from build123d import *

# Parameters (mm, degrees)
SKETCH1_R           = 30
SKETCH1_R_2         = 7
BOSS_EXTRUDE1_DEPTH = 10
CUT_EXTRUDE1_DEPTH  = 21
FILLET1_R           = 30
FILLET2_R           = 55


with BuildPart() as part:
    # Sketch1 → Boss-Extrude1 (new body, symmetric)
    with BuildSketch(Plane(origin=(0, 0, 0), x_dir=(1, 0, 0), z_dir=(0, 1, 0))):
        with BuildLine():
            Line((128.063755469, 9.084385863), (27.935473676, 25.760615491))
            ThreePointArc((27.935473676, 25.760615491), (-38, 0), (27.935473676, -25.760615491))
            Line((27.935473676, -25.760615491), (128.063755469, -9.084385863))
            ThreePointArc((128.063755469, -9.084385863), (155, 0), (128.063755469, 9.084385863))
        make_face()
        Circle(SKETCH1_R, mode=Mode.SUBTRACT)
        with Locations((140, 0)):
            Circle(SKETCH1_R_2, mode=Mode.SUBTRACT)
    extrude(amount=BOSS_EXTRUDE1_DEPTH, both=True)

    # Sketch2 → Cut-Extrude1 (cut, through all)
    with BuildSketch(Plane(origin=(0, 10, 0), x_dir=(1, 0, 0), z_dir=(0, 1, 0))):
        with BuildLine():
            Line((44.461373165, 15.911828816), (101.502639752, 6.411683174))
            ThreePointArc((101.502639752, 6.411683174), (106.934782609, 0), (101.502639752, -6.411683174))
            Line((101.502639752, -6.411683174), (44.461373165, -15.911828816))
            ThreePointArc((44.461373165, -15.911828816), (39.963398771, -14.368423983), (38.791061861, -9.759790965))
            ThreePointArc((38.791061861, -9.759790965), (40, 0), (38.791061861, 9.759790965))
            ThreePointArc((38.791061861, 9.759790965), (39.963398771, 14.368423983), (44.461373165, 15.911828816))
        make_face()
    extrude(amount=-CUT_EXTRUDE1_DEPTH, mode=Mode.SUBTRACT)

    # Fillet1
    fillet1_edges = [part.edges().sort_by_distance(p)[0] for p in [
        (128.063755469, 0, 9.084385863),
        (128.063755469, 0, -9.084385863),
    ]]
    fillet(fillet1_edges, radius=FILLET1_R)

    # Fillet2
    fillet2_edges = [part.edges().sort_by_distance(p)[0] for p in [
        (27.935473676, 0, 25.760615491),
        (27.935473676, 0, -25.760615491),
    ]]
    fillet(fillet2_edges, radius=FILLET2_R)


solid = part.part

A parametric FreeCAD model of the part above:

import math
import FreeCAD as App
import Part
import Sketcher


def edges_at(feature, points):
    """Names of the edges that pass closest to the given points."""
    edges = feature.Shape.Edges
    near = lambda p: min(range(len(edges)), key=lambda i: edges[i].distToShape(Part.Vertex(*p))[0])
    return sorted({f"Edge{near(p) + 1}" for p in points})

doc = App.newDocument("Part")
body = doc.addObject("PartDesign::Body", "Body")

# Sketch on XZ plane
sketch1 = body.newObject("Sketcher::SketchObject", "Sketch")
sketch1.AttachmentSupport = (doc.getObject("XZ_Plane"), [""])
sketch1.MapMode = "FlatFace"
sketch1.addGeometry([
    Part.LineSegment(App.Vector(128.063755, -9.084386, 0), App.Vector(27.935474, -25.760615, 0)),  # 0
    Part.ArcOfCircle(Part.Circle(App.Vector(0, 0, 0), App.Vector(0, 0, 1), 38), math.radians(42.680611), math.radians(317.319389)),  # 1
    Part.LineSegment(App.Vector(27.935474, 25.760615, 0), App.Vector(128.063755, 9.084386, 0)),  # 2
    Part.ArcOfCircle(Part.Circle(App.Vector(140, 0, 0), App.Vector(0, 0, 1), 15), math.radians(-142.726118), math.radians(142.726118)),  # 3
    Part.Circle(App.Vector(0, 0, 0), App.Vector(0, 0, 1), 30),  # 4
    Part.Circle(App.Vector(140, 0, 0), App.Vector(0, 0, 1), 7),  # 5
], False)
sketch1.addConstraint([
    Sketcher.Constraint("Coincident", 0, 2, 1, 2),
    Sketcher.Constraint("Coincident", 1, 1, 2, 1),
    Sketcher.Constraint("Coincident", 2, 2, 3, 2),
    Sketcher.Constraint("Coincident", 3, 1, 0, 1),
    Sketcher.Constraint("Coincident", 1, 3, -1, 1),
    Sketcher.Constraint("Coincident", 4, 3, -1, 1),
    Sketcher.Constraint("Coincident", 5, 3, 3, 3),
    Sketcher.Constraint("Symmetric", 2, 2, 3, 1, -1),
    Sketcher.Constraint("Vertical", 0, 2, 1, 1),
    Sketcher.Constraint("Diameter", 4, 60.0),
    Sketcher.Constraint("Diameter", 5, 14.0),
    Sketcher.Constraint("Radius", 1, 38.0),
    Sketcher.Constraint("Radius", 3, 15.0),
    Sketcher.Constraint("DistanceX", -1, 1, 3, 3, 140.0),
    Sketcher.Constraint("DistanceY", 0, 2, 2, 2, 34.845001),
    Sketcher.Constraint("DistanceY", 0, 2, 1, 1, 51.521231),
])
pad1 = body.newObject("PartDesign::Pad", "Pad")
pad1.Profile = sketch1
pad1.Length = 20
pad1.Midplane = True

# Sketch on XZ plane
sketch2 = body.newObject("Sketcher::SketchObject", "Sketch001")
sketch2.AttachmentSupport = (doc.getObject("XZ_Plane"), [""])
sketch2.MapMode = "FlatFace"
sketch2.AttachmentOffset = App.Placement(App.Vector(0, 0, -10), App.Rotation())
sketch2.addGeometry([
    Part.LineSegment(App.Vector(101.50264, -6.411683, 0), App.Vector(44.461373, -15.911829, 0)),  # 0
    Part.ArcOfCircle(Part.Circle(App.Vector(43.639945, -10.979765, 0), App.Vector(0, 0, 1), 5), math.radians(165.877564), math.radians(279.455743)),  # 1
    Part.ArcOfCircle(Part.Circle(App.Vector(0, 0, 0), App.Vector(0, 0, 1), 40), math.radians(-14.122436), math.radians(14.122436)),  # 2
    Part.ArcOfCircle(Part.Circle(App.Vector(43.639945, 10.979765, 0), App.Vector(0, 0, 1), 5), math.radians(80.544257), math.radians(194.122436)),  # 3
    Part.LineSegment(App.Vector(44.461373, 15.911829, 0), App.Vector(101.50264, 6.411683, 0)),  # 4
    Part.ArcOfCircle(Part.Circle(App.Vector(100.434783, 0, 0), App.Vector(0, 0, 1), 6.5), math.radians(-80.544257), math.radians(80.544257)),  # 5
], False)
sketch2.addConstraint([
    Sketcher.Constraint("Tangent", 0, 2, 1, 2),
    Sketcher.Constraint("Tangent", 1, 1, 2, 1),
    Sketcher.Constraint("Tangent", 2, 2, 3, 2),
    Sketcher.Constraint("Tangent", 3, 1, 4, 1),
    Sketcher.Constraint("Tangent", 4, 2, 5, 2),
    Sketcher.Constraint("Tangent", 5, 1, 0, 1),
    Sketcher.Constraint("Coincident", 2, 3, -1, 1),
    Sketcher.Constraint("Equal", 1, 3),
    Sketcher.Constraint("Symmetric", 0, 2, 3, 1, -1),
    Sketcher.Constraint("Radius", 1, 5.0),
    Sketcher.Constraint("Radius", 2, 40.0),
    Sketcher.Constraint("Radius", 5, 6.5),
    Sketcher.Constraint("DistanceY", 0, 2, -1, 1, 15.911829),
    Sketcher.Constraint("DistanceX", -1, 1, 4, 2, 101.50264),
])
pocket1 = body.newObject("PartDesign::Pocket", "Pocket")
pocket1.Profile = sketch2
pocket1.Type = "ThroughAll"
pocket1.Reversed = True
doc.recompute()

fillet = body.newObject("PartDesign::Fillet", "Fillet")
fillet.Base = (pocket1, edges_at(pocket1, [(128.064, 0, 9.084), (128.064, 0, -9.084)]))
fillet.Radius = 30
doc.recompute()

fillet2 = body.newObject("PartDesign::Fillet", "Fillet001")
fillet2.Base = (fillet, edges_at(fillet, [(27.935, 0, 25.761), (27.935, 0, -25.761)]))
fillet2.Radius = 55

doc.recompute()
